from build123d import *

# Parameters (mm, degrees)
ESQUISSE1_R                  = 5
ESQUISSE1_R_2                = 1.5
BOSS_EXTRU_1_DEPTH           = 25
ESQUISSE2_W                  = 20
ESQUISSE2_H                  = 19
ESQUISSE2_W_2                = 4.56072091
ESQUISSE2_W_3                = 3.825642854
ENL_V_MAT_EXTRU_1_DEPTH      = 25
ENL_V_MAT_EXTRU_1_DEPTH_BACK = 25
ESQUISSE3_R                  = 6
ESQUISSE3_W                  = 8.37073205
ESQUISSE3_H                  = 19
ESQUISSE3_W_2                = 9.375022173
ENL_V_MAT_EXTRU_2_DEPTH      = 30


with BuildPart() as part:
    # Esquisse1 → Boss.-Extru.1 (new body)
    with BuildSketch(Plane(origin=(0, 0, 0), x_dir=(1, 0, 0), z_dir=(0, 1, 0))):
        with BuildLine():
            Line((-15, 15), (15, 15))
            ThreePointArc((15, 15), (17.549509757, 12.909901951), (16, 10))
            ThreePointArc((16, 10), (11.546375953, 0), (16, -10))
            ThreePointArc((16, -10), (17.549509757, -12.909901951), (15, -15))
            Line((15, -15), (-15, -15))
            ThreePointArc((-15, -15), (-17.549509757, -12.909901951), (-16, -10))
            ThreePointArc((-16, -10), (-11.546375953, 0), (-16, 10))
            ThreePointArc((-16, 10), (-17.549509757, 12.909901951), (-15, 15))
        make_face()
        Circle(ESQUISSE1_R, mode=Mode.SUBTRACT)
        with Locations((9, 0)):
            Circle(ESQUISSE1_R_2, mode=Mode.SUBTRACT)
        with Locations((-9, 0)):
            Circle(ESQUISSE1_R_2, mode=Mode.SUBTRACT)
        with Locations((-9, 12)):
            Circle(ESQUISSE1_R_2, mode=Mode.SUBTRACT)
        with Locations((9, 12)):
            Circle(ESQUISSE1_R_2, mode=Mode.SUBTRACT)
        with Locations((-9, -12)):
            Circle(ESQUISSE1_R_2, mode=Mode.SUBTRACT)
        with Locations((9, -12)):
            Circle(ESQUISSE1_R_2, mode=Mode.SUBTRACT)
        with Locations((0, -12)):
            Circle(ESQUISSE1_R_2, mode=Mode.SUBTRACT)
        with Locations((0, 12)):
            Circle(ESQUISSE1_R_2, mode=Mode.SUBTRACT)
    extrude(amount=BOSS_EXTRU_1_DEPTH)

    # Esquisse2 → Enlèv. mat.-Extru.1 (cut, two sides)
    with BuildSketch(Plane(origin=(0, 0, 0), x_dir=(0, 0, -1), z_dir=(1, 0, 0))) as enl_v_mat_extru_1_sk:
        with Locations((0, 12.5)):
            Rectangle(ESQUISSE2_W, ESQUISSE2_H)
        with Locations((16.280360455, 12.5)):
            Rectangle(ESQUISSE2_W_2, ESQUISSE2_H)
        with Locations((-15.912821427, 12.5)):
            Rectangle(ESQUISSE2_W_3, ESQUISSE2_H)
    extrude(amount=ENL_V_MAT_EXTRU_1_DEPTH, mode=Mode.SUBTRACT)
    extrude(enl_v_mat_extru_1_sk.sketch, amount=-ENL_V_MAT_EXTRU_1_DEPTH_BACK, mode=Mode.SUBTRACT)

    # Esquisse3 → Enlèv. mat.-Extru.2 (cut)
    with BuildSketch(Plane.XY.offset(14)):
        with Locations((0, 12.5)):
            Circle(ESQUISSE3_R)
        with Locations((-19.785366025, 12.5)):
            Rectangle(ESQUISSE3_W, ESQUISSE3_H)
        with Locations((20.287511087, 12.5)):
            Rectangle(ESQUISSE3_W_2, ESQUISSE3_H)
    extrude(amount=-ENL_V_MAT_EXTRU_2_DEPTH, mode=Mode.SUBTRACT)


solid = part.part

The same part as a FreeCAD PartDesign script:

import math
import FreeCAD as App
import Part
import Sketcher

doc = App.newDocument("Part")
body = doc.addObject("PartDesign::Body", "Body")

# Sketch on XZ plane
sketch1 = doc.addObject("Sketcher::SketchObject", "Sketch")
body.addObject(sketch1)
sketch1.AttachmentSupport = (doc.XZ_Plane, [""])
sketch1.MapMode = "FlatFace"
sketch1.addGeometry([
    Part.LineSegment(App.Vector(15, -15, 0), App.Vector(-15, -15, 0)),  # 0
    Part.ArcOfCircle(Part.Circle(App.Vector(-15, -12.4, 0), App.Vector(0, 0, 1), 2.6), math.radians(113), math.radians(270)),  # 1
    Part.ArcOfCircle(Part.Circle(App.Vector(-25, 0, 0), App.Vector(0, 0, 1), 13.5), math.radians(-48), math.radians(48)),  # 2
    Part.ArcOfCircle(Part.Circle(App.Vector(-15, 12.4, 0), App.Vector(0, 0, 1), 2.6), math.radians(90), math.radians(247)),  # 3
    Part.LineSegment(App.Vector(-15, 15, 0), App.Vector(15, 15, 0)),  # 4
    Part.ArcOfCircle(Part.Circle(App.Vector(15, 12.4, 0), App.Vector(0, 0, 1), 2.6), math.radians(-67), math.radians(90)),  # 5
    Part.ArcOfCircle(Part.Circle(App.Vector(25, 0, 0), App.Vector(0, 0, 1), 13.5), math.radians(132), math.radians(228)),  # 6
    Part.ArcOfCircle(Part.Circle(App.Vector(15, -12.4, 0), App.Vector(0, 0, 1), 2.6), math.radians(-90), math.radians(67)),  # 7
    Part.Circle(App.Vector(9, 12, 0), App.Vector(0, 0, 1), 1.5),  # 8
    Part.Circle(App.Vector(0, 12, 0), App.Vector(0, 0, 1), 1.5),  # 9
    Part.Circle(App.Vector(-9, 12, 0), App.Vector(0, 0, 1), 1.5),  # 10
    Part.Circle(App.Vector(9, 0, 0), App.Vector(0, 0, 1), 1.5),  # 11
    Part.Circle(App.Vector(9, -12, 0), App.Vector(0, 0, 1), 1.5),  # 12
    Part.Circle(App.Vector(0, 0, 0), App.Vector(0, 0, 1), 5),  # 13
    Part.Circle(App.Vector(-9, 0, 0), App.Vector(0, 0, 1), 1.5),  # 14
    Part.Circle(App.Vector(0, -12, 0), App.Vector(0, 0, 1), 1.5),  # 15
    Part.Circle(App.Vector(-9, -12, 0), App.Vector(0, 0, 1), 1.5),  # 16
], False)
sketch1.addConstraint([
    Sketcher.Constraint("Tangent", 0, 2, 1, 2),
    Sketcher.Constraint("Coincident", 1, 1, 2, 1),
    Sketcher.Constraint("Coincident", 2, 2, 3, 2),
    Sketcher.Constraint("Tangent", 3, 1, 4, 1),
    Sketcher.Constraint("Tangent", 4, 2, 5, 2),
    Sketcher.Constraint("Coincident", 5, 1, 6, 1),
    Sketcher.Constraint("Coincident", 6, 2, 7, 2),
    Sketcher.Constraint("Tangent", 7, 1, 0, 1),
    Sketcher.Constraint("Horizontal", 0),
    Sketcher.Constraint("Horizontal", 4),
    Sketcher.Constraint("Coincident", 13, 3, -1, 1),
    Sketcher.Constraint("Equal", 1, 3),
    Sketcher.Constraint("Equal", 3, 5),
    Sketcher.Constraint("Equal", 2, 6),
    Sketcher.Constraint("Equal", 5, 7),
    Sketcher.Constraint("Equal", 8, 9),
    Sketcher.Constraint("Equal", 9, 10),
    Sketcher.Constraint("Equal", 10, 11),
    Sketcher.Constraint("Equal", 11, 12),
    Sketcher.Constraint("Equal", 12, 14),
    Sketcher.Constraint("Equal", 14, 15),
    Sketcher.Constraint("Equal", 15, 16),
    Sketcher.Constraint("Symmetric", 1, 3, 5, 3, -1, 1),
    Sketcher.Constraint("Symmetric", 2, 3, 6, 3, -1, 1),
    Sketcher.Constraint("Symmetric", 10, 3, 12, 3, -1, 1),
    Sketcher.Constraint("Symmetric", 11, 3, 14, 3, -1, 1),
    Sketcher.Constraint("Symmetric", 9, 3, 15, 3, -1, 1),
    Sketcher.Constraint("Symmetric", 8, 3, 16, 3, -1, 1),
    Sketcher.Constraint("Symmetric", 8, 3, 10, 3, -2),
    Sketcher.Constraint("Symmetric", 2, 2, 5, 1, -2),
    Sketcher.Constraint("PointOnObject", 9, 3, -2),
    Sketcher.Constraint("PointOnObject", 11, 3, -1),
    Sketcher.Constraint("Horizontal", 8, 3, 9, 3),
    Sketcher.Constraint("Horizontal", 1, 1, 6, 2),
    Sketcher.Constraint("Vertical", 8, 3, 11, 3),
    Sketcher.Constraint("Diameter", 8, 3.0),
    Sketcher.Constraint("Diameter", 13, 10.0),
    Sketcher.Constraint("Radius", 1, 2.6),
    Sketcher.Constraint("DistanceX", 0, 2, 0, 1, 30.0),
    Sketcher.Constraint("DistanceX", 2, 3, -1, 1, 25.0),
    Sketcher.Constraint("DistanceX", -1, 1, 8, 3, 9.0),
    Sketcher.Constraint("DistanceY", -1, 1, 8, 3, 12.0),
    Sketcher.Constraint("DistanceY", 0, 2, -1, 1, 15.0),
    Sketcher.Constraint("DistanceX", 1, 1, -1, 1, 16.0),
])
pad1 = doc.addObject("PartDesign::Pad", "Pad")
body.addObject(pad1)
pad1.Profile = sketch1
pad1.Length = 25
pad1.Reversed = True

# Sketch on YZ plane
sketch2 = doc.addObject("Sketcher::SketchObject", "Sketch001")
body.addObject(sketch2)
sketch2.AttachmentSupport = (doc.YZ_Plane, [""])
sketch2.MapMode = "FlatFace"
sketch2.addGeometry([
    Part.LineSegment(App.Vector(22, 10, 0), App.Vector(3, 10, 0)),  # 0
    Part.LineSegment(App.Vector(3, 10, 0), App.Vector(3, -10, 0)),  # 1
    Part.LineSegment(App.Vector(3, -10, 0), App.Vector(22, -10, 0)),  # 2
    Part.LineSegment(App.Vector(22, -10, 0), App.Vector(22, 10, 0)),  # 3
    Part.LineSegment(App.Vector(22, -14, 0), App.Vector(3, -14, 0)),  # 4
    Part.LineSegment(App.Vector(3, -14, 0), App.Vector(3, -18.6, 0)),  # 5
    Part.LineSegment(App.Vector(3, -18.6, 0), App.Vector(22, -18.6, 0)),  # 6
    Part.LineSegment(App.Vector(22, -18.6, 0), App.Vector(22, -14, 0)),  # 7
    Part.LineSegment(App.Vector(22, 17.8, 0), App.Vector(3, 17.8, 0)),  # 8
    Part.LineSegment(App.Vector(3, 17.8, 0), App.Vector(3, 14, 0)),  # 9
    Part.LineSegment(App.Vector(3, 14, 0), App.Vector(22, 14, 0)),  # 10
    Part.LineSegment(App.Vector(22, 14, 0), App.Vector(22, 17.8, 0)),  # 11
], False)
sketch2.addConstraint([
    Sketcher.Constraint("Coincident", 0, 2, 1, 1),
    Sketcher.Constraint("Coincident", 1, 2, 2, 1),
    Sketcher.Constraint("Coincident", 2, 2, 3, 1),
    Sketcher.Constraint("Coincident", 3, 2, 0, 1),
    Sketcher.Constraint("Coincident", 4, 2, 5, 1),
    Sketcher.Constraint("Coincident", 5, 2, 6, 1),
    Sketcher.Constraint("Coincident", 6, 2, 7, 1),
    Sketcher.Constraint("Coincident", 7, 2, 4, 1),
    Sketcher.Constraint("Coincident", 8, 2, 9, 1),
    Sketcher.Constraint("Coincident", 9, 2, 10, 1),
    Sketcher.Constraint("Coincident", 10, 2, 11, 1),
    Sketcher.Constraint("Coincident", 11, 2, 8, 1),
    Sketcher.Constraint("Horizontal", 0),
    Sketcher.Constraint("Vertical", 1),
    Sketcher.Constraint("Horizontal", 2),
    Sketcher.Constraint("Vertical", 3),
    Sketcher.Constraint("Horizontal", 4),
    Sketcher.Constraint("Vertical", 5),
    Sketcher.Constraint("Horizontal", 6),
    Sketcher.Constraint("Vertical", 7),
    Sketcher.Constraint("Horizontal", 8),
    Sketcher.Constraint("Vertical", 9),
    Sketcher.Constraint("Horizontal", 10),
    Sketcher.Constraint("Vertical", 11),
    Sketcher.Constraint("Symmetric", 4, 2, 9, 2, -1),
    Sketcher.Constraint("Vertical", 1, 2, 4, 2),
    Sketcher.Constraint("Vertical", 3, 2, 6, 2),
    Sketcher.Constraint("Vertical", 7, 2, 10, 2),
    Sketcher.Constraint("DistanceX", 0, 2, 0, 1, 19.0),
    Sketcher.Constraint("DistanceY", 1, 2, 1, 1, 20.0),
    Sketcher.Constraint("DistanceX", -1, 1, 0, 2, 3.0),
    Sketcher.Constraint("DistanceY", -1, 1, 0, 2, 10.0),
    Sketcher.Constraint("DistanceY", 4, 2, -1, 1, 14.0),
    Sketcher.Constraint("DistanceY", 5, 2, 5, 1, 4.560721),
    Sketcher.Constraint("DistanceY", 9, 2, 9, 1, 3.825643),
])
pocket1 = doc.addObject("PartDesign::Pocket", "Pocket")
body.addObject(pocket1)
pocket1.Profile = sketch2
pocket1.Type = "ThroughAll"
pocket1.Midplane = True

# Sketch on XY plane
sketch3 = doc.addObject("Sketcher::SketchObject", "Sketch002")
body.addObject(sketch3)
sketch3.AttachmentSupport = (doc.XY_Plane, [""])
sketch3.MapMode = "FlatFace"
sketch3.AttachmentOffset = App.Placement(App.Vector(0, 0, 14), App.Rotation())
sketch3.addGeometry([
    Part.Circle(App.Vector(0, 12, 0), App.Vector(0, 0, 1), 6),  # 0
    Part.LineSegment(App.Vector(-24, 22, 0), App.Vector(-24, 3, 0)),  # 1
    Part.LineSegment(App.Vector(-24, 3, 0), App.Vector(-16, 3, 0)),  # 2
    Part.LineSegment(App.Vector(-16, 3, 0), App.Vector(-16, 22, 0)),  # 3
    Part.LineSegment(App.Vector(-16, 22, 0), App.Vector(-24, 22, 0)),  # 4
    Part.LineSegment(App.Vector(16, 22, 0), App.Vector(16, 3, 0)),  # 5
    Part.LineSegment(App.Vector(16, 3, 0), App.Vector(25, 3, 0)),  # 6
    Part.LineSegment(App.Vector(25, 3, 0), App.Vector(25, 22, 0)),  # 7
    Part.LineSegment(App.Vector(25, 22, 0), App.Vector(16, 22, 0)),  # 8
], False)
sketch3.addConstraint([
    Sketcher.Constraint("Coincident", 1, 2, 2, 1),
    Sketcher.Constraint("Coincident", 2, 2, 3, 1),
    Sketcher.Constraint("Coincident", 3, 2, 4, 1),
    Sketcher.Constraint("Coincident", 4, 2, 1, 1),
    Sketcher.Constraint("Coincident", 5, 2, 6, 1),
    Sketcher.Constraint("Coincident", 6, 2, 7, 1),
    Sketcher.Constraint("Coincident", 7, 2, 8, 1),
    Sketcher.Constraint("Coincident", 8, 2, 5, 1),
    Sketcher.Constraint("Vertical", 1),
    Sketcher.Constraint("Horizontal", 2),
    Sketcher.Constraint("Vertical", 3),
    Sketcher.Constraint("Horizontal", 4),
    Sketcher.Constraint("Vertical", 5),
    Sketcher.Constraint("Horizontal", 6),
    Sketcher.Constraint("Vertical", 7),
    Sketcher.Constraint("Horizontal", 8),
    Sketcher.Constraint("Symmetric", 2, 2, 5, 2, -2),
    Sketcher.Constraint("PointOnObject", 0, 3, -2),
    Sketcher.Constraint("Horizontal", 4, 2, 7, 2),
    Sketcher.Constraint("Diameter", 0, 12.0),
    Sketcher.Constraint("DistanceY", 1, 2, 1, 1, 19.0),
    Sketcher.Constraint("DistanceY", -1, 1, 1, 2, 3.0),
    Sketcher.Constraint("DistanceY", -1, 1, 0, 3, 12.5),
    Sketcher.Constraint("DistanceX", 2, 2, -1, 1, 15.6),
    Sketcher.Constraint("DistanceX", 2, 1, 2, 2, 8.370732),
    Sketcher.Constraint("DistanceX", 6, 1, 6, 2, 9.375022),
])
pocket2 = doc.addObject("PartDesign::Pocket", "Pocket001")
body.addObject(pocket2)
pocket2.Profile = sketch3
pocket2.Length = 30

doc.recompute()
